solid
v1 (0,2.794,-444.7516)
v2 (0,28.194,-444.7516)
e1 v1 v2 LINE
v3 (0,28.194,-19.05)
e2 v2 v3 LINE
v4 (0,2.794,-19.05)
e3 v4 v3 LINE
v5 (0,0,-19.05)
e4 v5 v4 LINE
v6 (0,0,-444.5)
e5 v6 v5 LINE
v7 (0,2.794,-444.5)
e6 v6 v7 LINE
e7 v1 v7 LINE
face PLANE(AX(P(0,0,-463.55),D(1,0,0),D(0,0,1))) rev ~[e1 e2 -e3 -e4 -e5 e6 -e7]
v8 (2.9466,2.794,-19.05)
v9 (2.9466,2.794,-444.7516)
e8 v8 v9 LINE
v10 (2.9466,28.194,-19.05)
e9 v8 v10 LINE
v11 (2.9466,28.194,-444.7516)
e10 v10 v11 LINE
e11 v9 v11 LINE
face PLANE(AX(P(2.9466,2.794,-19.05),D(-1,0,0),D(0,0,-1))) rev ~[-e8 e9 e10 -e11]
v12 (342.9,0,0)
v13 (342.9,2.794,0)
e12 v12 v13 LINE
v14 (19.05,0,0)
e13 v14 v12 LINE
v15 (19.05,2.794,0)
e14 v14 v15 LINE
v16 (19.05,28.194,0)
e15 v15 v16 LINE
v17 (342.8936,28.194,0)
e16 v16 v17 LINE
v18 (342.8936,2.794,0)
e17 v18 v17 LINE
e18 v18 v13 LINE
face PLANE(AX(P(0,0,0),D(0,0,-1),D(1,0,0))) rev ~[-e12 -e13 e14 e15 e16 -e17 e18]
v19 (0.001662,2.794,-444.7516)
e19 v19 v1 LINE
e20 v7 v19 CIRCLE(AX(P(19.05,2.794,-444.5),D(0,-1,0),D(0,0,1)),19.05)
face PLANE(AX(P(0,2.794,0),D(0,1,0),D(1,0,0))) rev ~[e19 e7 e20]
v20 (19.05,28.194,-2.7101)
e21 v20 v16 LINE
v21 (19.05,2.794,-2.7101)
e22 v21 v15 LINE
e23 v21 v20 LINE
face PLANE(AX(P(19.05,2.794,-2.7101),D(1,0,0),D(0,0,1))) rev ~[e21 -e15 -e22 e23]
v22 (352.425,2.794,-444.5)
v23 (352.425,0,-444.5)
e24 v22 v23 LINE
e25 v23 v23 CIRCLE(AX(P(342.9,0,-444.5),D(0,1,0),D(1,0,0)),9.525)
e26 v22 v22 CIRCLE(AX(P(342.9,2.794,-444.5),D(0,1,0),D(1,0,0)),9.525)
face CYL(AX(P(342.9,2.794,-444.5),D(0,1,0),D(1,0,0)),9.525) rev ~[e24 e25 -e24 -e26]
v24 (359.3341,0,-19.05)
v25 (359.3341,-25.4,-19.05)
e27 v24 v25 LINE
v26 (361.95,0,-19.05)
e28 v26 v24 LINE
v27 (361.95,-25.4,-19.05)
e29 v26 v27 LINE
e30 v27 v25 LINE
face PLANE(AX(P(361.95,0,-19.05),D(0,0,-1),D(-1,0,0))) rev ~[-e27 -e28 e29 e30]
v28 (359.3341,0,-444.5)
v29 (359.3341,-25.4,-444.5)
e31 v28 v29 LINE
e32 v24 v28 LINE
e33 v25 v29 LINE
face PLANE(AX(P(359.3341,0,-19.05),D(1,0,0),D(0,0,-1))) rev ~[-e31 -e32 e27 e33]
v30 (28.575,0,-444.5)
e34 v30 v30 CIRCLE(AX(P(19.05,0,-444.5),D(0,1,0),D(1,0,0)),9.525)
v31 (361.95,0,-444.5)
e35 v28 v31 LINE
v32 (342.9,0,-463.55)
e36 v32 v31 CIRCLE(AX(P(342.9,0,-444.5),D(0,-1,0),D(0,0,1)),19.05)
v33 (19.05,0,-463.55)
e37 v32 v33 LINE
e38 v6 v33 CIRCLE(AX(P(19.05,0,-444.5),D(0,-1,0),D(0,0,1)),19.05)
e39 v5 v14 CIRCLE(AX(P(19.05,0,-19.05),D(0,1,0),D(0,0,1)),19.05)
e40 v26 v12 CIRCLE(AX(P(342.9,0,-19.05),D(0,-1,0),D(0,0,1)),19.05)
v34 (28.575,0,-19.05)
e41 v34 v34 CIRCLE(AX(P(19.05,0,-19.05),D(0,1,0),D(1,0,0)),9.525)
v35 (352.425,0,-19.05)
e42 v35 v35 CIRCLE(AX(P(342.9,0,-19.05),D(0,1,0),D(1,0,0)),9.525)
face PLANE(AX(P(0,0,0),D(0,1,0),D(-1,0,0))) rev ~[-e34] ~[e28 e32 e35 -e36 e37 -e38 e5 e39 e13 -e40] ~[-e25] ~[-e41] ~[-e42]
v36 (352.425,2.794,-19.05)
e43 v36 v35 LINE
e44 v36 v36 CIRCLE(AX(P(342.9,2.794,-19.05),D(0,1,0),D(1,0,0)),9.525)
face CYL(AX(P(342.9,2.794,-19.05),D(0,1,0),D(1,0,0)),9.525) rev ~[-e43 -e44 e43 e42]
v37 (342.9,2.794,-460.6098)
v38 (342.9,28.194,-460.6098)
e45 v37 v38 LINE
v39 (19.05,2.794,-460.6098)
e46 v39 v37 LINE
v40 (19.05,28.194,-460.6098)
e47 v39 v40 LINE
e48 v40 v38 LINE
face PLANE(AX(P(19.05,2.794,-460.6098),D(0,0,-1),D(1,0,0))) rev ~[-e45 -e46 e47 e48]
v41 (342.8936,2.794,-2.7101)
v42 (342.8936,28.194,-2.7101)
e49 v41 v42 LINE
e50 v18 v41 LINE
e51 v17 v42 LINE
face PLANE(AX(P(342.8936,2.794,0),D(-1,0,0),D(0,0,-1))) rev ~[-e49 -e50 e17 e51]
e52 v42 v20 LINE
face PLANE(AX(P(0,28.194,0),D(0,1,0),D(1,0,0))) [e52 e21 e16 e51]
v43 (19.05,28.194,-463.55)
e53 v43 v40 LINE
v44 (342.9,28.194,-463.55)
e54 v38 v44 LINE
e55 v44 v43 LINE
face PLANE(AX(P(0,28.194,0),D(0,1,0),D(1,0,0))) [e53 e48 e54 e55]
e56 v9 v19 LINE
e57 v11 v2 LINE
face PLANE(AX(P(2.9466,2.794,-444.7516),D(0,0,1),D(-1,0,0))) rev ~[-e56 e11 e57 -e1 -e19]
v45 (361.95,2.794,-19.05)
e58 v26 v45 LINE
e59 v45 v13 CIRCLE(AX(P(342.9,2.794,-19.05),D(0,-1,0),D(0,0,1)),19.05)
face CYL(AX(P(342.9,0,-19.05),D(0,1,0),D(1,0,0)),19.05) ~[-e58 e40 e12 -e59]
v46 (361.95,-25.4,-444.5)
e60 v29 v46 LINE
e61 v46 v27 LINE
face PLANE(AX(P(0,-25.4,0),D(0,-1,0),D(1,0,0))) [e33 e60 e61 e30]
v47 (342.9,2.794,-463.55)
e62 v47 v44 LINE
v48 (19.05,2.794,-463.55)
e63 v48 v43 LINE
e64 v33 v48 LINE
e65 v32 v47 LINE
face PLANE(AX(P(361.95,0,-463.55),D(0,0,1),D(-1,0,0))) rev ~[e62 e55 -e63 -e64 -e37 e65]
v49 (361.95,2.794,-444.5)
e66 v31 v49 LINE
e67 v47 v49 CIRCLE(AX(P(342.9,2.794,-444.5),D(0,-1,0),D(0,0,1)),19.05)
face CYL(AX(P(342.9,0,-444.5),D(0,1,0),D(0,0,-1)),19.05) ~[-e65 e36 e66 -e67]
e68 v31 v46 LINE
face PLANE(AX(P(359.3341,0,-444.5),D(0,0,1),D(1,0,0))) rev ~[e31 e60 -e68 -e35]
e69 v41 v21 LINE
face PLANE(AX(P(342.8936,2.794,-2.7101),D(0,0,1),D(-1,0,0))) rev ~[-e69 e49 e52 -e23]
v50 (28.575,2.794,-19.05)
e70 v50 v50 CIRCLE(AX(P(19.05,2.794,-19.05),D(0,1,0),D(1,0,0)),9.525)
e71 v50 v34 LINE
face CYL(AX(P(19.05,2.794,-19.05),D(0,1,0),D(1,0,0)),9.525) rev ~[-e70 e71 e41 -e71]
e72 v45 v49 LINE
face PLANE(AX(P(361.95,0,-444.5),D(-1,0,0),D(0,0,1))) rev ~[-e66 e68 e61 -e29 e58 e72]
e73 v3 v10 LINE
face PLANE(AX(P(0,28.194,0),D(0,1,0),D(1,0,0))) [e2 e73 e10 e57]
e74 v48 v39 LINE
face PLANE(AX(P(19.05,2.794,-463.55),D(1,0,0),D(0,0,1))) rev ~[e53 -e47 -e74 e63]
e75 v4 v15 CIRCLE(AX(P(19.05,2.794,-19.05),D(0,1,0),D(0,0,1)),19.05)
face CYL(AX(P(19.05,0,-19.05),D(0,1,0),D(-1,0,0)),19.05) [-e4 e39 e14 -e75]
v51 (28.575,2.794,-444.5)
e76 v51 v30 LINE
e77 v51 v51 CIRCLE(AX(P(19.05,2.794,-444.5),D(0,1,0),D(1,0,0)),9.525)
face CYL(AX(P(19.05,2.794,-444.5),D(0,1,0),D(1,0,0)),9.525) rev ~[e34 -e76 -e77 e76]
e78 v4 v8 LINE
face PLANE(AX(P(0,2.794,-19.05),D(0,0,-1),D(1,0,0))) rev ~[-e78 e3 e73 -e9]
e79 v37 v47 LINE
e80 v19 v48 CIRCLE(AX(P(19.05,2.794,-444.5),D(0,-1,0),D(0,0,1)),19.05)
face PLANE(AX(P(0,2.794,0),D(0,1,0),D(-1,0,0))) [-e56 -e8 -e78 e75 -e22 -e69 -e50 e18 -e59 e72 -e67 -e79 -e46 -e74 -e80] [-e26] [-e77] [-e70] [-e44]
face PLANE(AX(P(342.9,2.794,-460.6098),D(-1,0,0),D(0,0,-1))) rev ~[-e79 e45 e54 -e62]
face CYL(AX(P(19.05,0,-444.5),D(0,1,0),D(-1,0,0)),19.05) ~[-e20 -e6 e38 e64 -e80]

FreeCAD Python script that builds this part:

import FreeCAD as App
import Part
import Sketcher
Q = App.Units.Quantity


def edges_at(feature, points):
    """Names of the edges that pass closest to the given points."""
    edges = feature.Shape.Edges
    near = lambda p: min(range(len(edges)), key=lambda i: edges[i].distToShape(Part.Vertex(*p))[0])
    return sorted({f"Edge{near(p) + 1}" for p in points})


def add_polygon(sketch, points):
    """Adds a closed chain of lines whose ends are joined by coincident constraints."""
    first, n = sketch.GeometryCount, len(points)
    for a, b in zip(points, points[1:] + points[:1]):
        sketch.addGeometry(Part.LineSegment(App.Vector(*a, 0), App.Vector(*b, 0)), False)
    for i in range(n):
        sketch.addConstraint(Sketcher.Constraint("Coincident", first + i, 2, first + (i + 1) % n, 1))

doc = App.newDocument("Part")
params = doc.addObject("Spreadsheet::Sheet", "Params")
for row, (alias, value) in enumerate([
    ("sketch1_width", "14.25 in"),
    ("sketch1_height", "18.25 in"),
    ("pad1_length", "0.11 in"),
    ("fillet_radius", "0.75 in"),
    ("sketch2_height", "16.75 in"),
    ("sketch2_width", "0.103 in"),
    ("pad2_length", "1 in"),
    ("sketch3_width", "12.75 in"),
    ("sketch3_width2", "0.116 in"),
    ("pad3_length", "1 in"),
    ("sketch4_diameter", "0.75 in"),
    ("pocket1_length", "1 in"),
    ("sketch5_diameter", "0.75 in"),
    ("pocket2_length", "1 in"),
], start=1):
    params.set(f"A{row}", alias)
    params.set(f"B{row}", "=" + value)
    params.setAlias(f"B{row}", alias)

body = doc.addObject("PartDesign::Body", "Body")

# Sketch on XZ plane
sketch1 = body.newObject("Sketcher::SketchObject", "Sketch")
sketch1.AttachmentSupport = (doc.getObject("XZ_Plane"), [""])
sketch1.MapMode = "FlatFace"
add_polygon(sketch1, [(0, -464), (0, 0), (362, 0), (362, -464)])  # lines 0-3
sketch1.addConstraint(Sketcher.Constraint("Vertical", 0))
sketch1.addConstraint(Sketcher.Constraint("Horizontal", 1))
sketch1.addConstraint(Sketcher.Constraint("Vertical", 2))
sketch1.addConstraint(Sketcher.Constraint("Horizontal", 3))
sketch1.addConstraint(Sketcher.Constraint("Coincident", 0, 2, -1, 1))
sketch1.addConstraint(Sketcher.Constraint("DistanceX", 1, 1, 1, 2, Q("14.25 in")))
sketch1.addConstraint(Sketcher.Constraint("DistanceY", 0, 1, 0, 2, Q("18.25 in")))
sketch1.setExpression("Constraints[9]", "Params.sketch1_width")
sketch1.setExpression("Constraints[10]", "Params.sketch1_height")
pad1 = body.newObject("PartDesign::Pad", "Pad")
pad1.Profile = sketch1
pad1.setExpression("Length", "Params.pad1_length")
pad1.Reversed = True
doc.recompute()

fillet = body.newObject("PartDesign::Fillet", "Fillet")
fillet.Base = (pad1, edges_at(pad1, [
    (361.95, 1.397, 0),
    (361.95, 1.397, -463.55),
    (0, 1.397, -463.55),
    (0, 1.397, 0),
]))
fillet.setExpression("Radius", "Params.fillet_radius")

# Sketch on XZ plane
sketch2 = body.newObject("Sketcher::SketchObject", "Sketch001")
sketch2.AttachmentSupport = (doc.getObject("XZ_Plane"), [""])
sketch2.MapMode = "FlatFace"
add_polygon(sketch2, [(361.9, -444.5), (361.9, -19.1), (359.3, -19.1), (359.3, -444.5)])  # lines 0-3
sketch2.addConstraint(Sketcher.Constraint("Vertical", 0))
sketch2.addConstraint(Sketcher.Constraint("Horizontal", 1))
sketch2.addConstraint(Sketcher.Constraint("Vertical", 2))
sketch2.addConstraint(Sketcher.Constraint("Horizontal", 3))
sketch2.addConstraint(Sketcher.Constraint("DistanceY", 0, 1, 0, 2, Q("16.75 in")))
sketch2.addConstraint(Sketcher.Constraint("DistanceY", 2, 2, -1, 1, Q("17.5 in")))
sketch2.addConstraint(Sketcher.Constraint("DistanceX", 1, 2, 1, 1, Q("0.103 in")))
sketch2.addConstraint(Sketcher.Constraint("DistanceX", -1, 1, 0, 2, Q("14.25 in")))
sketch2.setExpression("Constraints[8]", "Params.sketch2_height")
sketch2.setExpression("Constraints[10]", "Params.sketch2_width")
pad2 = body.newObject("PartDesign::Pad", "Pad001")
pad2.Profile = sketch2
pad2.setExpression("Length", "Params.pad2_length")

# Sketch on XZ plane
sketch3 = body.newObject("Sketcher::SketchObject", "Sketch002")
sketch3.AttachmentSupport = (doc.getObject("XZ_Plane"), [""])
sketch3.MapMode = "FlatFace"
sketch3.AttachmentOffset = App.Placement(App.Vector(0, 0, -0.11 * 25.4), App.Rotation())
add_polygon(sketch3, [(19.1, -2.7), (19.1, 0), (342.9, 0), (342.9, -2.7)])  # lines 0-3
add_polygon(sketch3, [(0, -444.8), (0, -19.1), (2.9, -19.1), (2.9, -444.8)])  # lines 4-7
add_polygon(sketch3, [(342.9, -460.6), (342.9, -463.6), (19.1, -463.6), (19.1, -460.6)])  # lines 8-11
sketch3.addConstraint(Sketcher.Constraint("Vertical", 0))
sketch3.addConstraint(Sketcher.Constraint("Horizontal", 1))
sketch3.addConstraint(Sketcher.Constraint("Vertical", 2))
sketch3.addConstraint(Sketcher.Constraint("Horizontal", 3))
sketch3.addConstraint(Sketcher.Constraint("Vertical", 4))
sketch3.addConstraint(Sketcher.Constraint("Horizontal", 5))
sketch3.addConstraint(Sketcher.Constraint("Vertical", 6))
sketch3.addConstraint(Sketcher.Constraint("Horizontal", 7))
sketch3.addConstraint(Sketcher.Constraint("Vertical", 8))
sketch3.addConstraint(Sketcher.Constraint("Horizontal", 9))
sketch3.addConstraint(Sketcher.Constraint("Vertical", 10))
sketch3.addConstraint(Sketcher.Constraint("Horizontal", 11))
sketch3.addConstraint(Sketcher.Constraint("PointOnObject", 0, 2, -1))
sketch3.addConstraint(Sketcher.Constraint("PointOnObject", 4, 2, -2))
sketch3.addConstraint(Sketcher.Constraint("Vertical", 3, 2, 9, 2))
sketch3.addConstraint(Sketcher.Constraint("DistanceX", 9, 2, 9, 1, Q("12.75 in")))
sketch3.addConstraint(Sketcher.Constraint("DistanceX", -1, 1, 8, 2, Q("13.5 in")))
sketch3.addConstraint(Sketcher.Constraint("DistanceY", 8, 2, 5, 2, Q("17.5 in")))
sketch3.addConstraint(Sketcher.Constraint("DistanceX", 5, 1, 5, 2, Q("0.116 in")))
sketch3.addConstraint(Sketcher.Constraint("DistanceY", 4, 2, -1, 1, Q("0.75 in")))
sketch3.addConstraint(Sketcher.Constraint("DistanceY", 0, 1, 0, 2, Q("0.1067 in")))
sketch3.addConstraint(Sketcher.Constraint("DistanceY", 4, 1, 4, 2, Q("16.7599 in")))
sketch3.addConstraint(Sketcher.Constraint("DistanceX", 1, 1, 1, 2, Q("323.8436 mm")))
sketch3.addConstraint(Sketcher.Constraint("DistanceY", 8, 2, 8, 1, Q("2.9402 mm")))
sketch3.setExpression("Constraints[27]", "Params.sketch3_width")
sketch3.setExpression("Constraints[30]", "Params.sketch3_width2")
pad3 = body.newObject("PartDesign::Pad", "Pad002")
pad3.Profile = sketch3
pad3.setExpression("Length", "Params.pad3_length")
pad3.Reversed = True

# Sketch on XZ plane
sketch4 = body.newObject("Sketcher::SketchObject", "Sketch003")
sketch4.AttachmentSupport = (doc.getObject("XZ_Plane"), [""])
sketch4.MapMode = "FlatFace"
sketch4.AttachmentOffset = App.Placement(App.Vector(0, 0, -0.11 * 25.4), App.Rotation())
sketch4.addGeometry(Part.Circle(App.Vector(19, -19, 0), App.Vector(0, 0, 1), 10), False)
sketch4.addGeometry(Part.Circle(App.Vector(19, -444, 0), App.Vector(0, 0, 1), 10), False)
sketch4.addConstraint(Sketcher.Constraint("Equal", 0, 1))
sketch4.addConstraint(Sketcher.Constraint("Vertical", 0, 3, 1, 3))
sketch4.addConstraint(Sketcher.Constraint("Diameter", 0, Q("0.75 in")))
sketch4.addConstraint(Sketcher.Constraint("DistanceX", -1, 1, 0, 3, Q("0.75 in")))
sketch4.addConstraint(Sketcher.Constraint("DistanceY", 0, 3, -1, 1, Q("0.75 in")))
sketch4.addConstraint(Sketcher.Constraint("DistanceY", 1, 3, -1, 1, Q("17.5 in")))
sketch4.setExpression("Constraints[2]", "Params.sketch4_diameter")
pocket1 = body.newObject("PartDesign::Pocket", "Pocket")
pocket1.Profile = sketch4
pocket1.setExpression("Length", "Params.pocket1_length")
pocket1.Reversed = True

# Sketch on XZ plane
sketch5 = body.newObject("Sketcher::SketchObject", "Sketch004")
sketch5.AttachmentSupport = (doc.getObject("XZ_Plane"), [""])
sketch5.MapMode = "FlatFace"
sketch5.AttachmentOffset = App.Placement(App.Vector(0, 0, -0.11 * 25.4), App.Rotation())
sketch5.addGeometry(Part.Circle(App.Vector(343, -19, 0), App.Vector(0, 0, 1), 10), False)
sketch5.addGeometry(Part.Circle(App.Vector(343, -444, 0), App.Vector(0, 0, 1), 10), False)
sketch5.addConstraint(Sketcher.Constraint("Equal", 0, 1))
sketch5.addConstraint(Sketcher.Constraint("Vertical", 0, 3, 1, 3))
sketch5.addConstraint(Sketcher.Constraint("Diameter", 0, Q("0.75 in")))
sketch5.addConstraint(Sketcher.Constraint("DistanceY", 0, 3, -1, 1, Q("0.75 in")))
sketch5.addConstraint(Sketcher.Constraint("DistanceX", -1, 1, 0, 3, Q("13.5 in")))
sketch5.addConstraint(Sketcher.Constraint("DistanceY", 1, 3, -1, 1, Q("17.5 in")))
sketch5.setExpression("Constraints[2]", "Params.sketch5_diameter")
pocket2 = body.newObject("PartDesign::Pocket", "Pocket001")
pocket2.Profile = sketch5
pocket2.setExpression("Length", "Params.pocket2_length")
pocket2.Reversed = True

doc.recompute()
